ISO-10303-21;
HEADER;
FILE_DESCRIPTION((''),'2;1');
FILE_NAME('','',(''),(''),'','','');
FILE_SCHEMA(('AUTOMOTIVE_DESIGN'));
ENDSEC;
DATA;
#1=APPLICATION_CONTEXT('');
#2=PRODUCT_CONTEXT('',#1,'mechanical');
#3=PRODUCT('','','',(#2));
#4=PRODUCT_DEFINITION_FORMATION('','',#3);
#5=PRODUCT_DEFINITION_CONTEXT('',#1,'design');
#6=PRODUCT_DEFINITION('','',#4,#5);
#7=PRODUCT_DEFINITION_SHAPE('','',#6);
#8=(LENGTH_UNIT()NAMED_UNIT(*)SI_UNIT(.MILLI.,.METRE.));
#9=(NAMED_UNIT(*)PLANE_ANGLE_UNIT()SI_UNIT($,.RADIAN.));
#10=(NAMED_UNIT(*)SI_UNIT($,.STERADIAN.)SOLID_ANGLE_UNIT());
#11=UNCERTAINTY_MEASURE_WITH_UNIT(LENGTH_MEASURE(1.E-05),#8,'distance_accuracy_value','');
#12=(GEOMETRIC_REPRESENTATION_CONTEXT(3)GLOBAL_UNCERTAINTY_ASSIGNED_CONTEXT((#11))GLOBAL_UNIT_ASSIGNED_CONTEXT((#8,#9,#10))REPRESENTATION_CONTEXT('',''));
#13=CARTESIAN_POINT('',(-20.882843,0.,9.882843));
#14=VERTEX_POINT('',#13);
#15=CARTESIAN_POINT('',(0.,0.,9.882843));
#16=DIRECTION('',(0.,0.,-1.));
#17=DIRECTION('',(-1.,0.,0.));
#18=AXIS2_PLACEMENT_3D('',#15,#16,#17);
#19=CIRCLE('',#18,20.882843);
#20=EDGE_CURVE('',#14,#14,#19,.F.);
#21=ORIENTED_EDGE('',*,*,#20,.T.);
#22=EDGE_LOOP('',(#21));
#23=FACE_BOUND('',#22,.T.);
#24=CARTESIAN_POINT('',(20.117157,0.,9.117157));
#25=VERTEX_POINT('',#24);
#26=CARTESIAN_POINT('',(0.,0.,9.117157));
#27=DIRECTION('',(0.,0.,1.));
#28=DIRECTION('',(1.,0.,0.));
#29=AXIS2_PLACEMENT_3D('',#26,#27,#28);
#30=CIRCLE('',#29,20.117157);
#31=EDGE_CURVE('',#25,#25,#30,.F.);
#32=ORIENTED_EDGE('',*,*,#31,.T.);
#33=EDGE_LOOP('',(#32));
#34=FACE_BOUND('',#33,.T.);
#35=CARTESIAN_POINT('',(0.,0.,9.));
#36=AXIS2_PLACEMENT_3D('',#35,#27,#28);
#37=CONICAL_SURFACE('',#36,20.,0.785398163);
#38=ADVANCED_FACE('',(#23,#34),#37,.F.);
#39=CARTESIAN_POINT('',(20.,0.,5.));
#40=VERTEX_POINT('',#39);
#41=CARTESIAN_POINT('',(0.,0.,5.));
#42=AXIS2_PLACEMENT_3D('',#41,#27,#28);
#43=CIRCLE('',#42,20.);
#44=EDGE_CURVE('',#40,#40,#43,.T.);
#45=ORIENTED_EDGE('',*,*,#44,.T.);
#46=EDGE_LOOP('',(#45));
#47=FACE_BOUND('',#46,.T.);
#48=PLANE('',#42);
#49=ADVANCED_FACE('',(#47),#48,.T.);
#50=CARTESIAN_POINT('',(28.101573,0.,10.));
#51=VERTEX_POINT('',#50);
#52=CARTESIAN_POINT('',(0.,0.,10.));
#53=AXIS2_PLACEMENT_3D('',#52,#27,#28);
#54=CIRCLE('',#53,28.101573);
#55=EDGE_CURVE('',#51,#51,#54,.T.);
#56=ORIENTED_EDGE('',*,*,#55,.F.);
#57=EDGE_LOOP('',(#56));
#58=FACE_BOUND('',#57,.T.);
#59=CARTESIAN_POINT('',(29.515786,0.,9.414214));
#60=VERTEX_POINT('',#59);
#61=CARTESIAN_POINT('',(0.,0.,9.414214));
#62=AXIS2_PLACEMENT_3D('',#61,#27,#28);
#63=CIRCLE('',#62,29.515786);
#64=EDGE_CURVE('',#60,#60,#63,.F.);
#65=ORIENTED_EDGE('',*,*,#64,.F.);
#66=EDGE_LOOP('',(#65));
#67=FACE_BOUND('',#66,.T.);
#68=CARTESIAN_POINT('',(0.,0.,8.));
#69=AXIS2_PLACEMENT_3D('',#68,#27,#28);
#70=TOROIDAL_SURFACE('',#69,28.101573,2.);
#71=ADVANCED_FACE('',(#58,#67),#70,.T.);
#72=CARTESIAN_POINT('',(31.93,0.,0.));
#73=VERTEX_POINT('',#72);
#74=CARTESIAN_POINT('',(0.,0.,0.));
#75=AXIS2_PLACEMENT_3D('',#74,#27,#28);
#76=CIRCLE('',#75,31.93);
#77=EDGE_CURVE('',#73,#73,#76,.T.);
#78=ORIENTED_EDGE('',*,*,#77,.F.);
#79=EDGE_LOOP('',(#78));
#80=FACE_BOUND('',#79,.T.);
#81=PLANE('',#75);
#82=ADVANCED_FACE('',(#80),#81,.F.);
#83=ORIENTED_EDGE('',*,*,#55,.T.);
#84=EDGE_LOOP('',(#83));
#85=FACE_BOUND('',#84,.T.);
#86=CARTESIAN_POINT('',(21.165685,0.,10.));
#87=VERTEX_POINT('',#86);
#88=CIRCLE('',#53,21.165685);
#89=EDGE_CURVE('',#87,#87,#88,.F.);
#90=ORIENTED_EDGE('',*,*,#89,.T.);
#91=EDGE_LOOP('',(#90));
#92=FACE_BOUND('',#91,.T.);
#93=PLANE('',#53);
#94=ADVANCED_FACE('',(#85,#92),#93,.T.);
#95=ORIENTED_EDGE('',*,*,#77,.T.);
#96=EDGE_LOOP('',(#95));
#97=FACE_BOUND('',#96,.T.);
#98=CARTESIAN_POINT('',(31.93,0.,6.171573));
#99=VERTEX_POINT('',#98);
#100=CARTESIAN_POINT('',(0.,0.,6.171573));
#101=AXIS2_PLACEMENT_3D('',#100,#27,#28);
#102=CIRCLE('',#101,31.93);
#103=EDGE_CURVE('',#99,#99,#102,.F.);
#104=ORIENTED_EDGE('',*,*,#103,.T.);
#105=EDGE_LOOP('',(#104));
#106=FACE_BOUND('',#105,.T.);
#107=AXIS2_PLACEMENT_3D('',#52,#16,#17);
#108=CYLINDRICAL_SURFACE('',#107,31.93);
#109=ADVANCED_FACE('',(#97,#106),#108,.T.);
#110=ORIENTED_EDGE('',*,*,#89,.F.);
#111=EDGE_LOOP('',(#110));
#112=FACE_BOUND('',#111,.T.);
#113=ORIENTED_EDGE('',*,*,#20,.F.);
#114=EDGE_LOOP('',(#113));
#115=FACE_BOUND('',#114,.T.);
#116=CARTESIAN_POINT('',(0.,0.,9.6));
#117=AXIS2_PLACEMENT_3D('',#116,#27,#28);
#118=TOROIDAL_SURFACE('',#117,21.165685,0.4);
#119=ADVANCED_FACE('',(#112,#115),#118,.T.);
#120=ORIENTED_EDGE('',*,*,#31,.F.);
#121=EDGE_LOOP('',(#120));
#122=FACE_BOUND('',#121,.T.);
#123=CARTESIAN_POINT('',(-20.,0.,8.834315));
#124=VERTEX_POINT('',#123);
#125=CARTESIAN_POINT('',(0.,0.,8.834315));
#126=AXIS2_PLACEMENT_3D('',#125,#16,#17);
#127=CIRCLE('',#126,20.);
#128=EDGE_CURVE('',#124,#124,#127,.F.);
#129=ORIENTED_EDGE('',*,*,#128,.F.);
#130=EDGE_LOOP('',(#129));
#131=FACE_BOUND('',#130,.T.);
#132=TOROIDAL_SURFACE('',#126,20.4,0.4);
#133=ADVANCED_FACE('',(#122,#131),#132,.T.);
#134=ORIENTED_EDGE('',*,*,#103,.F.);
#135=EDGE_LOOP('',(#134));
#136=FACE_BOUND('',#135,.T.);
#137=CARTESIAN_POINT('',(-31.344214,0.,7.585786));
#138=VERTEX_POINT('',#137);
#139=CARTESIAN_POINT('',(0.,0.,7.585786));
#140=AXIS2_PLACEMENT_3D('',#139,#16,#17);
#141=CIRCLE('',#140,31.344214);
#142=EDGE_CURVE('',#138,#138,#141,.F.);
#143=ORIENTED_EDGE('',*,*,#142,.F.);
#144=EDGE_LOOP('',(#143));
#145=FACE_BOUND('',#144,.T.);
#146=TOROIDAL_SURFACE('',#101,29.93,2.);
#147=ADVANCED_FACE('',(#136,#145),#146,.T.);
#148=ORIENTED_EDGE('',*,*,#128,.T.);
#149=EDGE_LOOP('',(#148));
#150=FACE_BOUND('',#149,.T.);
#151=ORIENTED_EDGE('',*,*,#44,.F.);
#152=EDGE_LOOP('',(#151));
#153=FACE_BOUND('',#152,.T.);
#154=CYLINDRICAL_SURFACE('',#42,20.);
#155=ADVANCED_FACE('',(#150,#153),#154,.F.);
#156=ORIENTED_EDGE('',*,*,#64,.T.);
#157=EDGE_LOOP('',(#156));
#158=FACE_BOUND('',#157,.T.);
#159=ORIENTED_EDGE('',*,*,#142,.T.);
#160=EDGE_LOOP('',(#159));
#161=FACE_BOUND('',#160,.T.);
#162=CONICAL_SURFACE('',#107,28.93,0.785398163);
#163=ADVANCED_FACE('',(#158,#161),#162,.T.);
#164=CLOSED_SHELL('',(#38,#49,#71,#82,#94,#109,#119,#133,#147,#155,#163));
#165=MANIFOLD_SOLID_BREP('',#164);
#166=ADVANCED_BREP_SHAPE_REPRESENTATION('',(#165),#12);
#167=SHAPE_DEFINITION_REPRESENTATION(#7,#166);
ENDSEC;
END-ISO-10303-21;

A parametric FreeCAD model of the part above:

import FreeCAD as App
import Part
import Sketcher


def edges_at(feature, points):
    """Names of the edges that pass closest to the given points."""
    edges = feature.Shape.Edges
    near = lambda p: min(range(len(edges)), key=lambda i: edges[i].distToShape(Part.Vertex(*p))[0])
    return sorted({f"Edge{near(p) + 1}" for p in points})

doc = App.newDocument("Part")
body = doc.addObject("PartDesign::Body", "Body")

# Sketch on XY plane
sketch1 = body.newObject("Sketcher::SketchObject", "Sketch")
sketch1.AttachmentSupport = (doc.getObject("XY_Plane"), [""])
sketch1.MapMode = "FlatFace"
sketch1.addGeometry(Part.Circle(App.Vector(0, 0, 0), App.Vector(0, 0, 1), 32), False)
sketch1.addConstraint(Sketcher.Constraint("Coincident", 0, 3, -1, 1))
sketch1.addConstraint(Sketcher.Constraint("Diameter", 0, 63.86))
pad1 = body.newObject("PartDesign::Pad", "Pad")
pad1.Profile = sketch1
pad1.Length = 10
doc.recompute()

chamfer = body.newObject("PartDesign::Chamfer", "Chamfer")
chamfer.Base = (pad1, edges_at(pad1, [(-31.93, 0, 10)]))
chamfer.Size = 3
doc.recompute()

fillet = body.newObject("PartDesign::Fillet", "Fillet")
fillet.Base = (chamfer, edges_at(chamfer, [(-28.93, 0, 10), (-31.93, 0, 7)]))
fillet.Radius = 2

# Sketch on XY plane
sketch2 = body.newObject("Sketcher::SketchObject", "Sketch001")
sketch2.AttachmentSupport = (doc.getObject("XY_Plane"), [""])
sketch2.MapMode = "FlatFace"
sketch2.AttachmentOffset = App.Placement(App.Vector(0, 0, 10), App.Rotation())
sketch2.addGeometry(Part.Circle(App.Vector(0, 0, 0), App.Vector(0, 0, 1), 20), False)
sketch2.addConstraint(Sketcher.Constraint("Coincident", 0, 3, -1, 1))
sketch2.addConstraint(Sketcher.Constraint("Diameter", 0, 40.0))
pocket1 = body.newObject("PartDesign::Pocket", "Pocket")
pocket1.Profile = sketch2
pocket1.Length = 5
doc.recompute()

chamfer2 = body.newObject("PartDesign::Chamfer", "Chamfer001")
chamfer2.Base = (pocket1, edges_at(pocket1, [(-20, 0, 10)]))
chamfer2.Size = 1
doc.recompute()

fillet2 = body.newObject("PartDesign::Fillet", "Fillet001")
fillet2.Base = (chamfer2, edges_at(chamfer2, [(-20, 0, 9), (-21, 0, 10)]))
fillet2.Radius = 0.4

doc.recompute()
